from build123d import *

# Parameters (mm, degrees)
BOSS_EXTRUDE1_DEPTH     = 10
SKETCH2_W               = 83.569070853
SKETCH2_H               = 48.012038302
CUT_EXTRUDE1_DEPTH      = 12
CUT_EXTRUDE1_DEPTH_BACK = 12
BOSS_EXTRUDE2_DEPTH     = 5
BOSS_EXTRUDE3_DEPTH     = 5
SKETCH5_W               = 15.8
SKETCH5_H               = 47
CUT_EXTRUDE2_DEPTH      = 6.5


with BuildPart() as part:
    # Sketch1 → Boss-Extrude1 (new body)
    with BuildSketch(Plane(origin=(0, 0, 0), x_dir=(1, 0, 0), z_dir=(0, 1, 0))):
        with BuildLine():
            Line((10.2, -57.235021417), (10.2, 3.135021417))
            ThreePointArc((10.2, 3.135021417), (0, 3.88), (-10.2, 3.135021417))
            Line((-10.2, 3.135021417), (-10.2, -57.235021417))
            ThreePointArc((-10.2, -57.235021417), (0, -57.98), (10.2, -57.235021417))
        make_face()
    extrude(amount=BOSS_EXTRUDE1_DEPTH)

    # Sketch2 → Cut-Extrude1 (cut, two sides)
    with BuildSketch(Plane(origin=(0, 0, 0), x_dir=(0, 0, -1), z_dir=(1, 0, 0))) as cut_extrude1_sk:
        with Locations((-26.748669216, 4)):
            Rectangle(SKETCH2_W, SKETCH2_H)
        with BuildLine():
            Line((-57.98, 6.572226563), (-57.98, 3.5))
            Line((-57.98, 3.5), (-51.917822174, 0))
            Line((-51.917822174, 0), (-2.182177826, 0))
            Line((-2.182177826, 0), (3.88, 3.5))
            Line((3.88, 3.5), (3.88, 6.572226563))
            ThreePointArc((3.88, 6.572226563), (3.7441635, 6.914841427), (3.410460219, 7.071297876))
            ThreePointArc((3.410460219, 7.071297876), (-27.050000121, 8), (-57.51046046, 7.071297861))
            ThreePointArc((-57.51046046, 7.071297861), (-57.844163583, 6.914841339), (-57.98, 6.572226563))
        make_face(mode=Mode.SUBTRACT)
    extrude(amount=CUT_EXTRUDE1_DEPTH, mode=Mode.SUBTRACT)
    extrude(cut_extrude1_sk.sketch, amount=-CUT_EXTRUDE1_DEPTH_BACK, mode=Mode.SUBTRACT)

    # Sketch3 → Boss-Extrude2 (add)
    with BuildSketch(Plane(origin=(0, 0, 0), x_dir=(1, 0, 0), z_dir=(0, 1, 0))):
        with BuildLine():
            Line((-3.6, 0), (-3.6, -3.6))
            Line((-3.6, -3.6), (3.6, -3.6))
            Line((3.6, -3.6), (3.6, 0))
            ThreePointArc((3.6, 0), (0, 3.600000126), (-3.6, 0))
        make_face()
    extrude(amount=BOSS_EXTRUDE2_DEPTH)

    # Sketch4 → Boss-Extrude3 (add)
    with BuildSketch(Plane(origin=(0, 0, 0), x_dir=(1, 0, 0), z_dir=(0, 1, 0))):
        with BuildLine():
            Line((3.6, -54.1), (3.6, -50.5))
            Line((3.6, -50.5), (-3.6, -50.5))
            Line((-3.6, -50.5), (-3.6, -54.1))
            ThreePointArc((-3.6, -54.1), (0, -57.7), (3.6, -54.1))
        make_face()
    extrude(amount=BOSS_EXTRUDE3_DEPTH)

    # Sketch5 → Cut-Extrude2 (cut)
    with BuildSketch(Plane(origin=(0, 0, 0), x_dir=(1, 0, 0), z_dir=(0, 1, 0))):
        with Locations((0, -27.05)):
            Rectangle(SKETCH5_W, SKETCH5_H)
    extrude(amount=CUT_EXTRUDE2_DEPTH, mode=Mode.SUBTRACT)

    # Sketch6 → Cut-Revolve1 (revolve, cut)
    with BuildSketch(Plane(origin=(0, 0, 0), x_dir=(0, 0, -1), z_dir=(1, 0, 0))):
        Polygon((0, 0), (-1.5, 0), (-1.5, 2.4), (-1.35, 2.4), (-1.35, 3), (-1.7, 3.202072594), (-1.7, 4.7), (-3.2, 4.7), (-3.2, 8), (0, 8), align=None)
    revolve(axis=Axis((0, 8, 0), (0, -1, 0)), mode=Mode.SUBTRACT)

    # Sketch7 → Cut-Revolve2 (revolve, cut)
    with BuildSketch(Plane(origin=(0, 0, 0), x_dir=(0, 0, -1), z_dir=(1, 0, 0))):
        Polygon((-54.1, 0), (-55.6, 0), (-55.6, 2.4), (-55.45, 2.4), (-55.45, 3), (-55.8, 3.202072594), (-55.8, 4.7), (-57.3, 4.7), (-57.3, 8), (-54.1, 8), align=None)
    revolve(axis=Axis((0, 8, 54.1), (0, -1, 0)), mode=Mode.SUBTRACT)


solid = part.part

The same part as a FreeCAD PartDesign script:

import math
import FreeCAD as App
import Part
import Sketcher

V = App.Vector
Q = App.Units.Quantity

doc = App.newDocument("Part")
params = doc.addObject("Spreadsheet::Sheet", "Params")
for row, (alias, value) in enumerate([
    ("sketch1_radius", "70.2 mm"),
    ("pad1_length", "10 mm"),
    ("sketch2_radius", "500 mm"),
    ("sketch2_radius2", "0.5 mm"),
    ("sketch2_length", "7 mm"),
    ("sketch3_radius", "3.6 mm"),
    ("sketch3_height", "3.6 mm"),
    ("pad2_length", "5 mm"),
    ("sketch4_radius", "3.6 mm"),
    ("sketch4_height", "3.6 mm"),
    ("pad3_length", "5 mm"),
    ("sketch5_height", "47 mm"),
    ("sketch5_width", "15.8 mm"),
    ("pocket2_length", "6.5 mm"),
    ("sketch6_width", "8 mm"),
    ("sketch6_width2", "3.3 mm"),
    ("sketch6_width3", "0.6 mm"),
    ("sketch6_width4", "2.4 mm"),
    ("sketch6_height", "1.5 mm"),
    ("groove_angle", "360 deg"),
    ("sketch7_width", "8 mm"),
    ("sketch7_width2", "3.3 mm"),
    ("sketch7_width3", "0.6 mm"),
    ("sketch7_width4", "2.4 mm"),
    ("sketch7_height", "1.5 mm"),
    ("groove2_angle", "360 deg"),
], start=1):
    params.set(f"A{row}", alias)
    params.set(f"B{row}", "=" + value)
    params.setAlias(f"B{row}", alias)

body = doc.addObject("PartDesign::Body", "Body")

sketch1 = body.newObject("Sketcher::SketchObject", "Sketch")
sketch1.AttachmentSupport = (doc.getObject("XZ_Plane"), [""])
sketch1.MapMode = "FlatFace"
sketch1.addGeometry([
    Part.LineSegment(V(10, 57, 0), V(10, -3, 0)),
    Part.ArcOfCircle(Part.Circle(V(0, 66, 0), V(0, 0, 1), 70), math.radians(-98.35), math.radians(-81.65)),
    Part.LineSegment(V(-10, -3, 0), V(-10, 57, 0)),
    Part.ArcOfCircle(Part.Circle(V(0, -12, 0), V(0, 0, 1), 70), math.radians(81.65), math.radians(98.35)),
], False)
sketch1.addConstraint([
    Sketcher.Constraint("Coincident", 0, 2, 1, 2),
    Sketcher.Constraint("Coincident", 1, 1, 2, 1),
    Sketcher.Constraint("Coincident", 2, 2, 3, 2),
    Sketcher.Constraint("Coincident", 3, 1, 0, 1),
    Sketcher.Constraint("Vertical", 0),
    Sketcher.Constraint("Vertical", 2),
    Sketcher.Constraint("Equal", 1, 3),
    Sketcher.Constraint("Symmetric", 0, 2, 1, 1, -2),
    Sketcher.Constraint("PointOnObject", 3, 3, -2),
    Sketcher.Constraint("Radius", 1, 70.2),
    Sketcher.Constraint("DistanceX", -1, 1, 0, 2, 10.2),
    Sketcher.Constraint("DistanceY", -1, 1, 1, 3, 66.32),
    Sketcher.Constraint("DistanceY", 3, 3, -1, 1, 12.22),
])
sketch1.setExpression("Constraints[9]", "Params.sketch1_radius")
pad1 = body.newObject("PartDesign::Pad", "Pad")
pad1.Profile = sketch1
pad1.setExpression("Length", "Params.pad1_length")
pad1.Reversed = True

sketch2 = body.newObject("Sketcher::SketchObject", "Sketch001")
sketch2.AttachmentSupport = (doc.getObject("YZ_Plane"), [""])
sketch2.MapMode = "FlatFace"
sketch2.addGeometry([
    Part.LineSegment(V(28, 68.5, 0), V(-20, 68.5, 0)),
    Part.LineSegment(V(-20, 68.5, 0), V(-20, -15, 0)),
    Part.LineSegment(V(-20, -15, 0), V(28, -15, 0)),
    Part.LineSegment(V(28, -15, 0), V(28, 68.5, 0)),
    Part.LineSegment(V(3.5, 58, 0), V(6.6, 58, 0)),
    Part.ArcOfCircle(Part.Circle(V(6.6, 57.5, 0), V(0, 0, 1), 0.5), math.radians(3), math.radians(90)),
    Part.ArcOfCircle(Part.Circle(V(-492, 27, 0), V(0, 0, 1), 500), math.radians(-3.49), math.radians(3.49)),
    Part.ArcOfCircle(Part.Circle(V(6.6, -3.4, 0), V(0, 0, 1), 0.5), math.radians(-90), math.radians(-3)),
    Part.LineSegment(V(6.6, -3.9, 0), V(3.5, -3.9, 0)),
    Part.LineSegment(V(3.5, -3.9, 0), V(0, 2.2, 0)),
    Part.LineSegment(V(0, 2.2, 0), V(0, 51.9, 0)),
    Part.LineSegment(V(0, 51.9, 0), V(3.5, 58, 0)),
], False)
sketch2.addConstraint([
    Sketcher.Constraint("Coincident", 0, 2, 1, 1),
    Sketcher.Constraint("Coincident", 1, 2, 2, 1),
    Sketcher.Constraint("Coincident", 2, 2, 3, 1),
    Sketcher.Constraint("Coincident", 3, 2, 0, 1),
    Sketcher.Constraint("Tangent", 4, 2, 5, 2),
    Sketcher.Constraint("Tangent", 5, 1, 6, 2),
    Sketcher.Constraint("Tangent", 6, 1, 7, 2),
    Sketcher.Constraint("Tangent", 7, 1, 8, 1),
    Sketcher.Constraint("Coincident", 8, 2, 9, 1),
    Sketcher.Constraint("Coincident", 9, 2, 10, 1),
    Sketcher.Constraint("Coincident", 10, 2, 11, 1),
    Sketcher.Constraint("Coincident", 11, 2, 4, 1),
    Sketcher.Constraint("Horizontal", 0),
    Sketcher.Constraint("Vertical", 1),
    Sketcher.Constraint("Horizontal", 2),
    Sketcher.Constraint("Vertical", 3),
    Sketcher.Constraint("Horizontal", 4),
    Sketcher.Constraint("Horizontal", 8),
    Sketcher.Constraint("Vertical", 10),
    Sketcher.Constraint("Equal", 5, 7),
    Sketcher.Constraint("PointOnObject", 9, 2, -2),
    Sketcher.Constraint("Vertical", 5, 3, 7, 3),
    Sketcher.Constraint("Vertical", 8, 2, 11, 2),
    Sketcher.Constraint("Equal", 9, 11),
    Sketcher.Constraint("Radius", 6, 500.0),
    Sketcher.Constraint("Radius", 5, 0.5),
    Sketcher.Constraint("Angle", 9, Q("120 deg")),
    Sketcher.Constraint("Distance", 9, 7.0),
    Sketcher.Constraint("DistanceX", 6, 3, -1, 1, 492.0),
    Sketcher.Constraint("DistanceY", -1, 1, 5, 3, 57.48),
    Sketcher.Constraint("DistanceY", -1, 1, 6, 3, 27.05),
    Sketcher.Constraint("DistanceX", 0, 2, 0, 1, 48.012038),
    Sketcher.Constraint("DistanceY", 1, 2, 1, 1, 83.569071),
    Sketcher.Constraint("DistanceX", 0, 2, -1, 1, 20.006019),
    Sketcher.Constraint("DistanceY", -1, 1, 0, 2, 68.533205),
])
sketch2.setExpression("Constraints[24]", "Params.sketch2_radius")
sketch2.setExpression("Constraints[25]", "Params.sketch2_radius2")
sketch2.setExpression("Constraints[27]", "Params.sketch2_length")
pocket1 = body.newObject("PartDesign::Pocket", "Pocket")
pocket1.Profile = sketch2
pocket1.Type = "ThroughAll"
pocket1.Midplane = True

sketch3 = body.newObject("Sketcher::SketchObject", "Sketch002")
sketch3.AttachmentSupport = (doc.getObject("XZ_Plane"), [""])
sketch3.MapMode = "FlatFace"
sketch3.addGeometry([
    Part.LineSegment(V(-3.6, 0, 0), V(-3.6, 3.6, 0)),
    Part.LineSegment(V(-3.6, 3.6, 0), V(3.6, 3.6, 0)),
    Part.LineSegment(V(3.6, 3.6, 0), V(3.6, 0, 0)),
    Part.ArcOfCircle(Part.Circle(V(0, 0, 0), V(0, 0, 1), 3.6), math.radians(180), math.radians(360)),
], False)
sketch3.addConstraint([
    Sketcher.Constraint("Coincident", 0, 2, 1, 1),
    Sketcher.Constraint("Coincident", 1, 2, 2, 1),
    Sketcher.Constraint("Tangent", 2, 2, 3, 2),
    Sketcher.Constraint("Tangent", 3, 1, 0, 1),
    Sketcher.Constraint("Vertical", 0),
    Sketcher.Constraint("Horizontal", 1),
    Sketcher.Constraint("Vertical", 2),
    Sketcher.Constraint("Coincident", 3, 3, -1, 1),
    Sketcher.Constraint("Radius", 3, 3.6),
    Sketcher.Constraint("DistanceY", 0, 1, 0, 2, 3.6),
])
sketch3.setExpression("Constraints[8]", "Params.sketch3_radius")
sketch3.setExpression("Constraints[9]", "Params.sketch3_height")
pad2 = body.newObject("PartDesign::Pad", "Pad001")
pad2.Profile = sketch3
pad2.setExpression("Length", "Params.pad2_length")
pad2.Reversed = True

sketch4 = body.newObject("Sketcher::SketchObject", "Sketch003")
sketch4.AttachmentSupport = (doc.getObject("XZ_Plane"), [""])
sketch4.MapMode = "FlatFace"
sketch4.addGeometry([
    Part.LineSegment(V(3.6, 54.1, 0), V(3.6, 50.5, 0)),
    Part.LineSegment(V(3.6, 50.5, 0), V(-3.6, 50.5, 0)),
    Part.LineSegment(V(-3.6, 50.5, 0), V(-3.6, 54.1, 0)),
    Part.ArcOfCircle(Part.Circle(V(0, 54.1, 0), V(0, 0, 1), 3.6), math.radians(0), math.radians(180)),
], False)
sketch4.addConstraint([
    Sketcher.Constraint("Coincident", 0, 2, 1, 1),
    Sketcher.Constraint("Coincident", 1, 2, 2, 1),
    Sketcher.Constraint("Tangent", 2, 2, 3, 2),
    Sketcher.Constraint("Tangent", 3, 1, 0, 1),
    Sketcher.Constraint("Vertical", 0),
    Sketcher.Constraint("Horizontal", 1),
    Sketcher.Constraint("Vertical", 2),
    Sketcher.Constraint("PointOnObject", 3, 3, -2),
    Sketcher.Constraint("Radius", 3, 3.6),
    Sketcher.Constraint("DistanceY", 0, 2, 0, 1, 3.6),
    Sketcher.Constraint("DistanceY", -1, 1, 3, 3, 54.1),
])
sketch4.setExpression("Constraints[8]", "Params.sketch4_radius")
sketch4.setExpression("Constraints[9]", "Params.sketch4_height")
pad3 = body.newObject("PartDesign::Pad", "Pad002")
pad3.Profile = sketch4
pad3.setExpression("Length", "Params.pad3_length")
pad3.Reversed = True

sketch5 = body.newObject("Sketcher::SketchObject", "Sketch004")
sketch5.AttachmentSupport = (doc.getObject("XZ_Plane"), [""])
sketch5.MapMode = "FlatFace"
sketch5.addGeometry([
    Part.LineSegment(V(-8, 4, 0), V(-8, 51, 0)),
    Part.LineSegment(V(-8, 51, 0), V(8, 51, 0)),
    Part.LineSegment(V(8, 51, 0), V(8, 4, 0)),
    Part.LineSegment(V(8, 4, 0), V(-8, 4, 0)),
], False)
sketch5.addConstraint([
    Sketcher.Constraint("Coincident", 0, 2, 1, 1),
    Sketcher.Constraint("Coincident", 1, 2, 2, 1),
    Sketcher.Constraint("Coincident", 2, 2, 3, 1),
    Sketcher.Constraint("Coincident", 3, 2, 0, 1),
    Sketcher.Constraint("Vertical", 0),
    Sketcher.Constraint("Horizontal", 1),
    Sketcher.Constraint("Vertical", 2),
    Sketcher.Constraint("Horizontal", 3),
    Sketcher.Constraint("DistanceY", 0, 1, 0, 2, 47.0),
    Sketcher.Constraint("DistanceX", 1, 1, 1, 2, 15.8),
    Sketcher.Constraint("DistanceX", 0, 2, -1, 1, 7.9),
    Sketcher.Constraint("DistanceY", -1, 1, 0, 2, 50.55),
])
sketch5.setExpression("Constraints[8]", "Params.sketch5_height")
sketch5.setExpression("Constraints[9]", "Params.sketch5_width")
pocket2 = body.newObject("PartDesign::Pocket", "Pocket001")
pocket2.Profile = sketch5
pocket2.setExpression("Length", "Params.pocket2_length")

sketch6 = body.newObject("Sketcher::SketchObject", "Sketch005")
sketch6.AttachmentSupport = (doc.getObject("YZ_Plane"), [""])
sketch6.MapMode = "FlatFace"
sketch6.addGeometry([
    Part.LineSegment(V(0, 1.5, 0), V(0, 0, 0)),
    Part.LineSegment(V(0, 0, 0), V(8, 0, 0)),
    Part.LineSegment(V(8, 0, 0), V(8, 3.2, 0)),
    Part.LineSegment(V(8, 3.2, 0), V(4.7, 3.2, 0)),
    Part.LineSegment(V(4.7, 3.2, 0), V(4.7, 1.7, 0)),
    Part.LineSegment(V(4.7, 1.7, 0), V(3.2, 1.7, 0)),
    Part.LineSegment(V(3.2, 1.7, 0), V(3, 1.35, 0)),
    Part.LineSegment(V(3, 1.35, 0), V(2.4, 1.35, 0)),
    Part.LineSegment(V(2.4, 1.35, 0), V(2.4, 1.5, 0)),
    Part.LineSegment(V(2.4, 1.5, 0), V(0, 1.5, 0)),
], False)
sketch6.addConstraint([
    Sketcher.Constraint("Coincident", 0, 2, 1, 1),
    Sketcher.Constraint("Coincident", 1, 2, 2, 1),
    Sketcher.Constraint("Coincident", 2, 2, 3, 1),
    Sketcher.Constraint("Coincident", 3, 2, 4, 1),
    Sketcher.Constraint("Coincident", 4, 2, 5, 1),
    Sketcher.Constraint("Coincident", 5, 2, 6, 1),
    Sketcher.Constraint("Coincident", 6, 2, 7, 1),
    Sketcher.Constraint("Coincident", 7, 2, 8, 1),
    Sketcher.Constraint("Coincident", 8, 2, 9, 1),
    Sketcher.Constraint("Coincident", 9, 2, 0, 1),
    Sketcher.Constraint("Vertical", 0),
    Sketcher.Constraint("Horizontal", 1),
    Sketcher.Constraint("Vertical", 2),
    Sketcher.Constraint("Horizontal", 3),
    Sketcher.Constraint("Vertical", 4),
    Sketcher.Constraint("Horizontal", 5),
    Sketcher.Constraint("Horizontal", 7),
    Sketcher.Constraint("Vertical", 8),
    Sketcher.Constraint("Horizontal", 9),
    Sketcher.Constraint("Coincident", 0, 2, -1, 1),
    Sketcher.Constraint("Equal", 0, 4),
    Sketcher.Constraint("DistanceX", 1, 1, 1, 2, 8.0),
    Sketcher.Constraint("Angle", 6, Q("-120 deg")),
    Sketcher.Constraint("DistanceX", 3, 2, 3, 1, 3.3),
    Sketcher.Constraint("DistanceX", 7, 2, 7, 1, 0.6),
    Sketcher.Constraint("DistanceX", 9, 2, 9, 1, 2.4),
    Sketcher.Constraint("DistanceY", 0, 2, 0, 1, 1.5),
    Sketcher.Constraint("DistanceY", 2, 1, 2, 2, 3.2),
    Sketcher.Constraint("DistanceY", 8, 1, 8, 2, 0.15),
])
sketch6.setExpression("Constraints[21]", "Params.sketch6_width")
sketch6.setExpression("Constraints[23]", "Params.sketch6_width2")
sketch6.setExpression("Constraints[24]", "Params.sketch6_width3")
sketch6.setExpression("Constraints[25]", "Params.sketch6_width4")
sketch6.setExpression("Constraints[26]", "Params.sketch6_height")
groove = body.newObject("PartDesign::Groove", "Groove")
groove.Profile = sketch6
groove.ReferenceAxis = (sketch6, ["H_Axis"])
groove.setExpression("Angle", "Params.groove_angle")

sketch7 = body.newObject("Sketcher::SketchObject", "Sketch006")
sketch7.AttachmentSupport = (doc.getObject("YZ_Plane"), [""])
sketch7.MapMode = "FlatFace"
sketch7.addGeometry([
    Part.LineSegment(V(0, 55.6, 0), V(0, 54.1, 0)),
    Part.LineSegment(V(0, 54.1, 0), V(8, 54.1, 0)),
    Part.LineSegment(V(8, 54.1, 0), V(8, 57.3, 0)),
    Part.LineSegment(V(8, 57.3, 0), V(4.7, 57.3, 0)),
    Part.LineSegment(V(4.7, 57.3, 0), V(4.7, 55.8, 0)),
    Part.LineSegment(V(4.7, 55.8, 0), V(3.2, 55.8, 0)),
    Part.LineSegment(V(3.2, 55.8, 0), V(3, 55.45, 0)),
    Part.LineSegment(V(3, 55.45, 0), V(2.4, 55.45, 0)),
    Part.LineSegment(V(2.4, 55.45, 0), V(2.4, 55.6, 0)),
    Part.LineSegment(V(2.4, 55.6, 0), V(0, 55.6, 0)),
], False)
sketch7.addGeometry(Part.LineSegment(V(8, 54.1, 0), V(0, 54.1, 0)), True)
sketch7.addConstraint([
    Sketcher.Constraint("Coincident", 0, 2, 1, 1),
    Sketcher.Constraint("Coincident", 1, 2, 2, 1),
    Sketcher.Constraint("Coincident", 2, 2, 3, 1),
    Sketcher.Constraint("Coincident", 3, 2, 4, 1),
    Sketcher.Constraint("Coincident", 4, 2, 5, 1),
    Sketcher.Constraint("Coincident", 5, 2, 6, 1),
    Sketcher.Constraint("Coincident", 6, 2, 7, 1),
    Sketcher.Constraint("Coincident", 7, 2, 8, 1),
    Sketcher.Constraint("Coincident", 8, 2, 9, 1),
    Sketcher.Constraint("Coincident", 9, 2, 0, 1),
    Sketcher.Constraint("Vertical", 0),
    Sketcher.Constraint("Horizontal", 1),
    Sketcher.Constraint("Vertical", 2),
    Sketcher.Constraint("Horizontal", 3),
    Sketcher.Constraint("Vertical", 4),
    Sketcher.Constraint("Horizontal", 5),
    Sketcher.Constraint("Horizontal", 7),
    Sketcher.Constraint("Vertical", 8),
    Sketcher.Constraint("Horizontal", 9),
    Sketcher.Constraint("Horizontal", 10),
    Sketcher.Constraint("Coincident", 10, 1, 1, 2),
    Sketcher.Constraint("PointOnObject", 0, 2, -2),
    Sketcher.Constraint("PointOnObject", 10, 2, -2),
    Sketcher.Constraint("Equal", 0, 4),
    Sketcher.Constraint("DistanceX", 1, 1, 1, 2, 8.0),
    Sketcher.Constraint("Angle", 6, Q("-120 deg")),
    Sketcher.Constraint("DistanceX", 3, 2, 3, 1, 3.3),
    Sketcher.Constraint("DistanceX", 7, 2, 7, 1, 0.6),
    Sketcher.Constraint("DistanceX", 9, 2, 9, 1, 2.4),
    Sketcher.Constraint("DistanceY", 0, 2, 0, 1, 1.5),
    Sketcher.Constraint("DistanceY", 2, 1, 2, 2, 3.2),
    Sketcher.Constraint("DistanceY", 8, 1, 8, 2, 0.15),
    Sketcher.Constraint("DistanceY", -1, 1, 0, 2, 54.1),
])
sketch7.setExpression("Constraints[24]", "Params.sketch7_width")
sketch7.setExpression("Constraints[26]", "Params.sketch7_width2")
sketch7.setExpression("Constraints[27]", "Params.sketch7_width3")
sketch7.setExpression("Constraints[28]", "Params.sketch7_width4")
sketch7.setExpression("Constraints[29]", "Params.sketch7_height")
groove2 = body.newObject("PartDesign::Groove", "Groove001")
groove2.Profile = sketch7
groove2.ReferenceAxis = (sketch7, ["Axis0"])
groove2.setExpression("Angle", "Params.groove2_angle")

doc.recompute()
